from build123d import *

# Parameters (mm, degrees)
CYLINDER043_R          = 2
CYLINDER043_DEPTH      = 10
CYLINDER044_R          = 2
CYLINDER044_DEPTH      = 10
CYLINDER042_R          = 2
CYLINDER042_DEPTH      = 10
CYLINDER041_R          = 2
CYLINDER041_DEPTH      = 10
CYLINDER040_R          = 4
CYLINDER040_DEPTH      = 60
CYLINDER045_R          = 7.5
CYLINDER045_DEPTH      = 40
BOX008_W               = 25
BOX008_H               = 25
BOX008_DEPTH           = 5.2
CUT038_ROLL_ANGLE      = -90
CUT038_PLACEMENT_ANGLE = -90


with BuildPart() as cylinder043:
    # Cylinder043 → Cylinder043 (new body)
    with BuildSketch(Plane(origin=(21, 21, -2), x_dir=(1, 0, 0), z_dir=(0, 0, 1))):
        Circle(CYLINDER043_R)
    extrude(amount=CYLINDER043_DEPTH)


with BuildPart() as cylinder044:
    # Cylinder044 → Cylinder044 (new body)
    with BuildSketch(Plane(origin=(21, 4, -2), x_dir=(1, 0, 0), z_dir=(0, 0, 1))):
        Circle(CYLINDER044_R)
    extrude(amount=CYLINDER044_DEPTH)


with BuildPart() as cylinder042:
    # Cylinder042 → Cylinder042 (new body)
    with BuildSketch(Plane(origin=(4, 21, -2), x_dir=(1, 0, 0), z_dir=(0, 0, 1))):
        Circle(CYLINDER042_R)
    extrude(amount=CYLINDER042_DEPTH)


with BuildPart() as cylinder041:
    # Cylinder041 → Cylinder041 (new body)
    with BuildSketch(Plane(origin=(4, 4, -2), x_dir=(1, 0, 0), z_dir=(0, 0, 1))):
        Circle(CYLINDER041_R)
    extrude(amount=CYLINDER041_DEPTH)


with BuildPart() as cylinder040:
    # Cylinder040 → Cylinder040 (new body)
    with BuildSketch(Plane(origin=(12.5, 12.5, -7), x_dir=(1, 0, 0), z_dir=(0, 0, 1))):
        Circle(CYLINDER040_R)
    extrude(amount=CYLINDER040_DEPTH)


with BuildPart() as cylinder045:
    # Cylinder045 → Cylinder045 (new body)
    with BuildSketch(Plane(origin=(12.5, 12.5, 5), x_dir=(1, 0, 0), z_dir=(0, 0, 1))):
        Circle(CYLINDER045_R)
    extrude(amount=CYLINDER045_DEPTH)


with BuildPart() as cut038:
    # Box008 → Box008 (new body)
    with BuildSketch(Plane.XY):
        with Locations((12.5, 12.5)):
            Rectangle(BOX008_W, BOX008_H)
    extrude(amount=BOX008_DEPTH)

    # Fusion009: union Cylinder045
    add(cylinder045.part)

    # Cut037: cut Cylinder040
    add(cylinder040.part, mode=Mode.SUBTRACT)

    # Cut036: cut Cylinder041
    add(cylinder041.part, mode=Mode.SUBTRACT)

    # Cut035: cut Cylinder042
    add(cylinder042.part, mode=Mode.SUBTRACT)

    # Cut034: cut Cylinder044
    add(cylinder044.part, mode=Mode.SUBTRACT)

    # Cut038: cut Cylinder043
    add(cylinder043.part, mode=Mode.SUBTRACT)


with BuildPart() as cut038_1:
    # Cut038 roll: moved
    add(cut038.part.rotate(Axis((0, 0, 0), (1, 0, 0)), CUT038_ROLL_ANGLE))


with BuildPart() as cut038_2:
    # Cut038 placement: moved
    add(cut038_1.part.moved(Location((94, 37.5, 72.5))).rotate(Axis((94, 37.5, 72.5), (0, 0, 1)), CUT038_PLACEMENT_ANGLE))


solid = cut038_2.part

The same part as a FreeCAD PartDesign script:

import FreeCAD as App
import Part
import Sketcher
from FreeCAD import Vector
Q = App.Units.Quantity


def add_polygon(sketch, points):
    """Adds a closed chain of lines whose ends are joined by coincident constraints."""
    first, n = sketch.GeometryCount, len(points)
    for a, b in zip(points, points[1:] + points[:1]):
        sketch.addGeometry(Part.LineSegment(App.Vector(*a, 0), App.Vector(*b, 0)), False)
    for i in range(n):
        sketch.addConstraint(Sketcher.Constraint("Coincident", first + i, 2, first + (i + 1) % n, 1))

doc = App.newDocument("Part")
body = doc.addObject("PartDesign::Body", "Body")

# Sketch on XY plane
sketch1 = body.newObject("Sketcher::SketchObject", "Sketch")
sketch1.AttachmentSupport = (doc.getObject("XY_Plane"), [""])
sketch1.MapMode = "FlatFace"
sketch1.AttachmentOffset = App.Placement(Vector(0, 0, -2), App.Rotation())
sketch1.addGeometry(Part.Circle(Vector(21, 21, 0), Vector(0, 0, 1), 2), False)
sketch1.addConstraint([
    Sketcher.Constraint("Diameter", 0, Q("4 mm")),
    Sketcher.Constraint("DistanceX", -1, 1, 0, 3, Q("21 mm")),
    Sketcher.Constraint("DistanceY", -1, 1, 0, 3, Q("21 mm")),
])
pad1 = body.newObject("PartDesign::Pad", "Pad")
pad1.Profile = sketch1
pad1.Length = 10
body2 = doc.addObject("PartDesign::Body", "Body001")

# Sketch on XY plane
sketch2 = body2.newObject("Sketcher::SketchObject", "Sketch001")
sketch2.AttachmentSupport = (doc.getObject("XY_Plane001"), [""])
sketch2.MapMode = "FlatFace"
sketch2.AttachmentOffset = App.Placement(Vector(0, 0, -2), App.Rotation())
sketch2.addGeometry(Part.Circle(Vector(21, 4, 0), Vector(0, 0, 1), 2), False)
sketch2.addConstraint([
    Sketcher.Constraint("Diameter", 0, Q("4 mm")),
    Sketcher.Constraint("DistanceX", -1, 1, 0, 3, Q("21 mm")),
    Sketcher.Constraint("DistanceY", -1, 1, 0, 3, Q("4 mm")),
])
pad2 = body2.newObject("PartDesign::Pad", "Pad001")
pad2.Profile = sketch2
pad2.Length = 10
body3 = doc.addObject("PartDesign::Body", "Body002")

# Sketch on XY plane
sketch3 = body3.newObject("Sketcher::SketchObject", "Sketch002")
sketch3.AttachmentSupport = (doc.getObject("XY_Plane002"), [""])
sketch3.MapMode = "FlatFace"
sketch3.AttachmentOffset = App.Placement(Vector(0, 0, -2), App.Rotation())
sketch3.addGeometry(Part.Circle(Vector(4, 21, 0), Vector(0, 0, 1), 2), False)
sketch3.addConstraint([
    Sketcher.Constraint("Diameter", 0, Q("4 mm")),
    Sketcher.Constraint("DistanceX", -1, 1, 0, 3, Q("4 mm")),
    Sketcher.Constraint("DistanceY", -1, 1, 0, 3, Q("21 mm")),
])
pad3 = body3.newObject("PartDesign::Pad", "Pad002")
pad3.Profile = sketch3
pad3.Length = 10
body4 = doc.addObject("PartDesign::Body", "Body003")

# Sketch on XY plane
sketch4 = body4.newObject("Sketcher::SketchObject", "Sketch003")
sketch4.AttachmentSupport = (doc.getObject("XY_Plane003"), [""])
sketch4.MapMode = "FlatFace"
sketch4.AttachmentOffset = App.Placement(Vector(0, 0, -2), App.Rotation())
sketch4.addGeometry(Part.Circle(Vector(4, 4, 0), Vector(0, 0, 1), 2), False)
sketch4.addConstraint([
    Sketcher.Constraint("Diameter", 0, Q("4 mm")),
    Sketcher.Constraint("DistanceX", -1, 1, 0, 3, Q("4 mm")),
    Sketcher.Constraint("DistanceY", -1, 1, 0, 3, Q("4 mm")),
])
pad4 = body4.newObject("PartDesign::Pad", "Pad003")
pad4.Profile = sketch4
pad4.Length = 10
body5 = doc.addObject("PartDesign::Body", "Body004")

# Sketch on XY plane
sketch5 = body5.newObject("Sketcher::SketchObject", "Sketch004")
sketch5.AttachmentSupport = (doc.getObject("XY_Plane004"), [""])
sketch5.MapMode = "FlatFace"
sketch5.AttachmentOffset = App.Placement(Vector(0, 0, -7), App.Rotation())
sketch5.addGeometry(Part.Circle(Vector(12.5, 12.5, 0), Vector(0, 0, 1), 4), False)
sketch5.addConstraint([
    Sketcher.Constraint("Diameter", 0, Q("8 mm")),
    Sketcher.Constraint("DistanceX", -1, 1, 0, 3, Q("12.5 mm")),
    Sketcher.Constraint("DistanceY", -1, 1, 0, 3, Q("12.5 mm")),
])
pad5 = body5.newObject("PartDesign::Pad", "Pad004")
pad5.Profile = sketch5
pad5.Length = 60
body6 = doc.addObject("PartDesign::Body", "Body005")

# Sketch on XY plane
sketch6 = body6.newObject("Sketcher::SketchObject", "Sketch005")
sketch6.AttachmentSupport = (doc.getObject("XY_Plane005"), [""])
sketch6.MapMode = "FlatFace"
sketch6.AttachmentOffset = App.Placement(Vector(0, 0, 5), App.Rotation())
sketch6.addGeometry(Part.Circle(Vector(12, 12, 0), Vector(0, 0, 1), 8), False)
sketch6.addConstraint([
    Sketcher.Constraint("Diameter", 0, Q("15 mm")),
    Sketcher.Constraint("DistanceX", -1, 1, 0, 3, Q("12.5 mm")),
    Sketcher.Constraint("DistanceY", -1, 1, 0, 3, Q("12.5 mm")),
])
pad6 = body6.newObject("PartDesign::Pad", "Pad005")
pad6.Profile = sketch6
pad6.Length = 40
body7 = doc.addObject("PartDesign::Body", "Body006")

# Sketch on XY plane
sketch7 = body7.newObject("Sketcher::SketchObject", "Sketch006")
sketch7.AttachmentSupport = (doc.getObject("XY_Plane006"), [""])
sketch7.MapMode = "FlatFace"
add_polygon(sketch7, [(0, 25), (0, 0), (25, 0), (25, 25)])  # lines 0-3
sketch7.addConstraint([
    Sketcher.Constraint("Vertical", 0),
    Sketcher.Constraint("Horizontal", 1),
    Sketcher.Constraint("Vertical", 2),
    Sketcher.Constraint("Horizontal", 3),
    Sketcher.Constraint("Coincident", 0, 2, -1, 1),
    Sketcher.Constraint("Equal", 3, 0),
    Sketcher.Constraint("DistanceX", 1, 1, 1, 2, Q("25 mm")),
])
pad7 = body7.newObject("PartDesign::Pad", "Pad006")
pad7.Profile = sketch7
pad7.Length = 5.2
doc.recompute()

boolean = body7.newObject("PartDesign::Boolean", "Boolean")
boolean.Type = "Fuse"
boolean.addObjects([body6])
doc.recompute()

boolean2 = body7.newObject("PartDesign::Boolean", "Boolean001")
boolean2.Type = "Cut"
boolean2.addObjects([body5])
doc.recompute()

boolean3 = body7.newObject("PartDesign::Boolean", "Boolean002")
boolean3.Type = "Cut"
boolean3.addObjects([body4])
doc.recompute()

boolean4 = body7.newObject("PartDesign::Boolean", "Boolean003")
boolean4.Type = "Cut"
boolean4.addObjects([body3])
doc.recompute()

boolean5 = body7.newObject("PartDesign::Boolean", "Boolean004")
boolean5.Type = "Cut"
boolean5.addObjects([body2])
doc.recompute()

boolean6 = body7.newObject("PartDesign::Boolean", "Boolean005")
boolean6.Type = "Cut"
boolean6.addObjects([body])
body8 = doc.addObject("PartDesign::Body", "Body007")
doc.recompute()

body7.Placement = App.Placement(Vector(0, 0, 0), App.Rotation(Vector(1, 0, 0), 270))
boolean7 = body8.newObject("PartDesign::Boolean", "Boolean006")
boolean7.Type = "Fuse"
boolean7.addObjects([body7])
body9 = doc.addObject("PartDesign::Body", "Body008")
doc.recompute()

body8.Placement = App.Placement(Vector(94, 37.5, 72.5), App.Rotation(Vector(0, 0, 1), 270))
boolean8 = body9.newObject("PartDesign::Boolean", "Boolean007")
boolean8.Type = "Fuse"
boolean8.addObjects([body8])

doc.recompute()
